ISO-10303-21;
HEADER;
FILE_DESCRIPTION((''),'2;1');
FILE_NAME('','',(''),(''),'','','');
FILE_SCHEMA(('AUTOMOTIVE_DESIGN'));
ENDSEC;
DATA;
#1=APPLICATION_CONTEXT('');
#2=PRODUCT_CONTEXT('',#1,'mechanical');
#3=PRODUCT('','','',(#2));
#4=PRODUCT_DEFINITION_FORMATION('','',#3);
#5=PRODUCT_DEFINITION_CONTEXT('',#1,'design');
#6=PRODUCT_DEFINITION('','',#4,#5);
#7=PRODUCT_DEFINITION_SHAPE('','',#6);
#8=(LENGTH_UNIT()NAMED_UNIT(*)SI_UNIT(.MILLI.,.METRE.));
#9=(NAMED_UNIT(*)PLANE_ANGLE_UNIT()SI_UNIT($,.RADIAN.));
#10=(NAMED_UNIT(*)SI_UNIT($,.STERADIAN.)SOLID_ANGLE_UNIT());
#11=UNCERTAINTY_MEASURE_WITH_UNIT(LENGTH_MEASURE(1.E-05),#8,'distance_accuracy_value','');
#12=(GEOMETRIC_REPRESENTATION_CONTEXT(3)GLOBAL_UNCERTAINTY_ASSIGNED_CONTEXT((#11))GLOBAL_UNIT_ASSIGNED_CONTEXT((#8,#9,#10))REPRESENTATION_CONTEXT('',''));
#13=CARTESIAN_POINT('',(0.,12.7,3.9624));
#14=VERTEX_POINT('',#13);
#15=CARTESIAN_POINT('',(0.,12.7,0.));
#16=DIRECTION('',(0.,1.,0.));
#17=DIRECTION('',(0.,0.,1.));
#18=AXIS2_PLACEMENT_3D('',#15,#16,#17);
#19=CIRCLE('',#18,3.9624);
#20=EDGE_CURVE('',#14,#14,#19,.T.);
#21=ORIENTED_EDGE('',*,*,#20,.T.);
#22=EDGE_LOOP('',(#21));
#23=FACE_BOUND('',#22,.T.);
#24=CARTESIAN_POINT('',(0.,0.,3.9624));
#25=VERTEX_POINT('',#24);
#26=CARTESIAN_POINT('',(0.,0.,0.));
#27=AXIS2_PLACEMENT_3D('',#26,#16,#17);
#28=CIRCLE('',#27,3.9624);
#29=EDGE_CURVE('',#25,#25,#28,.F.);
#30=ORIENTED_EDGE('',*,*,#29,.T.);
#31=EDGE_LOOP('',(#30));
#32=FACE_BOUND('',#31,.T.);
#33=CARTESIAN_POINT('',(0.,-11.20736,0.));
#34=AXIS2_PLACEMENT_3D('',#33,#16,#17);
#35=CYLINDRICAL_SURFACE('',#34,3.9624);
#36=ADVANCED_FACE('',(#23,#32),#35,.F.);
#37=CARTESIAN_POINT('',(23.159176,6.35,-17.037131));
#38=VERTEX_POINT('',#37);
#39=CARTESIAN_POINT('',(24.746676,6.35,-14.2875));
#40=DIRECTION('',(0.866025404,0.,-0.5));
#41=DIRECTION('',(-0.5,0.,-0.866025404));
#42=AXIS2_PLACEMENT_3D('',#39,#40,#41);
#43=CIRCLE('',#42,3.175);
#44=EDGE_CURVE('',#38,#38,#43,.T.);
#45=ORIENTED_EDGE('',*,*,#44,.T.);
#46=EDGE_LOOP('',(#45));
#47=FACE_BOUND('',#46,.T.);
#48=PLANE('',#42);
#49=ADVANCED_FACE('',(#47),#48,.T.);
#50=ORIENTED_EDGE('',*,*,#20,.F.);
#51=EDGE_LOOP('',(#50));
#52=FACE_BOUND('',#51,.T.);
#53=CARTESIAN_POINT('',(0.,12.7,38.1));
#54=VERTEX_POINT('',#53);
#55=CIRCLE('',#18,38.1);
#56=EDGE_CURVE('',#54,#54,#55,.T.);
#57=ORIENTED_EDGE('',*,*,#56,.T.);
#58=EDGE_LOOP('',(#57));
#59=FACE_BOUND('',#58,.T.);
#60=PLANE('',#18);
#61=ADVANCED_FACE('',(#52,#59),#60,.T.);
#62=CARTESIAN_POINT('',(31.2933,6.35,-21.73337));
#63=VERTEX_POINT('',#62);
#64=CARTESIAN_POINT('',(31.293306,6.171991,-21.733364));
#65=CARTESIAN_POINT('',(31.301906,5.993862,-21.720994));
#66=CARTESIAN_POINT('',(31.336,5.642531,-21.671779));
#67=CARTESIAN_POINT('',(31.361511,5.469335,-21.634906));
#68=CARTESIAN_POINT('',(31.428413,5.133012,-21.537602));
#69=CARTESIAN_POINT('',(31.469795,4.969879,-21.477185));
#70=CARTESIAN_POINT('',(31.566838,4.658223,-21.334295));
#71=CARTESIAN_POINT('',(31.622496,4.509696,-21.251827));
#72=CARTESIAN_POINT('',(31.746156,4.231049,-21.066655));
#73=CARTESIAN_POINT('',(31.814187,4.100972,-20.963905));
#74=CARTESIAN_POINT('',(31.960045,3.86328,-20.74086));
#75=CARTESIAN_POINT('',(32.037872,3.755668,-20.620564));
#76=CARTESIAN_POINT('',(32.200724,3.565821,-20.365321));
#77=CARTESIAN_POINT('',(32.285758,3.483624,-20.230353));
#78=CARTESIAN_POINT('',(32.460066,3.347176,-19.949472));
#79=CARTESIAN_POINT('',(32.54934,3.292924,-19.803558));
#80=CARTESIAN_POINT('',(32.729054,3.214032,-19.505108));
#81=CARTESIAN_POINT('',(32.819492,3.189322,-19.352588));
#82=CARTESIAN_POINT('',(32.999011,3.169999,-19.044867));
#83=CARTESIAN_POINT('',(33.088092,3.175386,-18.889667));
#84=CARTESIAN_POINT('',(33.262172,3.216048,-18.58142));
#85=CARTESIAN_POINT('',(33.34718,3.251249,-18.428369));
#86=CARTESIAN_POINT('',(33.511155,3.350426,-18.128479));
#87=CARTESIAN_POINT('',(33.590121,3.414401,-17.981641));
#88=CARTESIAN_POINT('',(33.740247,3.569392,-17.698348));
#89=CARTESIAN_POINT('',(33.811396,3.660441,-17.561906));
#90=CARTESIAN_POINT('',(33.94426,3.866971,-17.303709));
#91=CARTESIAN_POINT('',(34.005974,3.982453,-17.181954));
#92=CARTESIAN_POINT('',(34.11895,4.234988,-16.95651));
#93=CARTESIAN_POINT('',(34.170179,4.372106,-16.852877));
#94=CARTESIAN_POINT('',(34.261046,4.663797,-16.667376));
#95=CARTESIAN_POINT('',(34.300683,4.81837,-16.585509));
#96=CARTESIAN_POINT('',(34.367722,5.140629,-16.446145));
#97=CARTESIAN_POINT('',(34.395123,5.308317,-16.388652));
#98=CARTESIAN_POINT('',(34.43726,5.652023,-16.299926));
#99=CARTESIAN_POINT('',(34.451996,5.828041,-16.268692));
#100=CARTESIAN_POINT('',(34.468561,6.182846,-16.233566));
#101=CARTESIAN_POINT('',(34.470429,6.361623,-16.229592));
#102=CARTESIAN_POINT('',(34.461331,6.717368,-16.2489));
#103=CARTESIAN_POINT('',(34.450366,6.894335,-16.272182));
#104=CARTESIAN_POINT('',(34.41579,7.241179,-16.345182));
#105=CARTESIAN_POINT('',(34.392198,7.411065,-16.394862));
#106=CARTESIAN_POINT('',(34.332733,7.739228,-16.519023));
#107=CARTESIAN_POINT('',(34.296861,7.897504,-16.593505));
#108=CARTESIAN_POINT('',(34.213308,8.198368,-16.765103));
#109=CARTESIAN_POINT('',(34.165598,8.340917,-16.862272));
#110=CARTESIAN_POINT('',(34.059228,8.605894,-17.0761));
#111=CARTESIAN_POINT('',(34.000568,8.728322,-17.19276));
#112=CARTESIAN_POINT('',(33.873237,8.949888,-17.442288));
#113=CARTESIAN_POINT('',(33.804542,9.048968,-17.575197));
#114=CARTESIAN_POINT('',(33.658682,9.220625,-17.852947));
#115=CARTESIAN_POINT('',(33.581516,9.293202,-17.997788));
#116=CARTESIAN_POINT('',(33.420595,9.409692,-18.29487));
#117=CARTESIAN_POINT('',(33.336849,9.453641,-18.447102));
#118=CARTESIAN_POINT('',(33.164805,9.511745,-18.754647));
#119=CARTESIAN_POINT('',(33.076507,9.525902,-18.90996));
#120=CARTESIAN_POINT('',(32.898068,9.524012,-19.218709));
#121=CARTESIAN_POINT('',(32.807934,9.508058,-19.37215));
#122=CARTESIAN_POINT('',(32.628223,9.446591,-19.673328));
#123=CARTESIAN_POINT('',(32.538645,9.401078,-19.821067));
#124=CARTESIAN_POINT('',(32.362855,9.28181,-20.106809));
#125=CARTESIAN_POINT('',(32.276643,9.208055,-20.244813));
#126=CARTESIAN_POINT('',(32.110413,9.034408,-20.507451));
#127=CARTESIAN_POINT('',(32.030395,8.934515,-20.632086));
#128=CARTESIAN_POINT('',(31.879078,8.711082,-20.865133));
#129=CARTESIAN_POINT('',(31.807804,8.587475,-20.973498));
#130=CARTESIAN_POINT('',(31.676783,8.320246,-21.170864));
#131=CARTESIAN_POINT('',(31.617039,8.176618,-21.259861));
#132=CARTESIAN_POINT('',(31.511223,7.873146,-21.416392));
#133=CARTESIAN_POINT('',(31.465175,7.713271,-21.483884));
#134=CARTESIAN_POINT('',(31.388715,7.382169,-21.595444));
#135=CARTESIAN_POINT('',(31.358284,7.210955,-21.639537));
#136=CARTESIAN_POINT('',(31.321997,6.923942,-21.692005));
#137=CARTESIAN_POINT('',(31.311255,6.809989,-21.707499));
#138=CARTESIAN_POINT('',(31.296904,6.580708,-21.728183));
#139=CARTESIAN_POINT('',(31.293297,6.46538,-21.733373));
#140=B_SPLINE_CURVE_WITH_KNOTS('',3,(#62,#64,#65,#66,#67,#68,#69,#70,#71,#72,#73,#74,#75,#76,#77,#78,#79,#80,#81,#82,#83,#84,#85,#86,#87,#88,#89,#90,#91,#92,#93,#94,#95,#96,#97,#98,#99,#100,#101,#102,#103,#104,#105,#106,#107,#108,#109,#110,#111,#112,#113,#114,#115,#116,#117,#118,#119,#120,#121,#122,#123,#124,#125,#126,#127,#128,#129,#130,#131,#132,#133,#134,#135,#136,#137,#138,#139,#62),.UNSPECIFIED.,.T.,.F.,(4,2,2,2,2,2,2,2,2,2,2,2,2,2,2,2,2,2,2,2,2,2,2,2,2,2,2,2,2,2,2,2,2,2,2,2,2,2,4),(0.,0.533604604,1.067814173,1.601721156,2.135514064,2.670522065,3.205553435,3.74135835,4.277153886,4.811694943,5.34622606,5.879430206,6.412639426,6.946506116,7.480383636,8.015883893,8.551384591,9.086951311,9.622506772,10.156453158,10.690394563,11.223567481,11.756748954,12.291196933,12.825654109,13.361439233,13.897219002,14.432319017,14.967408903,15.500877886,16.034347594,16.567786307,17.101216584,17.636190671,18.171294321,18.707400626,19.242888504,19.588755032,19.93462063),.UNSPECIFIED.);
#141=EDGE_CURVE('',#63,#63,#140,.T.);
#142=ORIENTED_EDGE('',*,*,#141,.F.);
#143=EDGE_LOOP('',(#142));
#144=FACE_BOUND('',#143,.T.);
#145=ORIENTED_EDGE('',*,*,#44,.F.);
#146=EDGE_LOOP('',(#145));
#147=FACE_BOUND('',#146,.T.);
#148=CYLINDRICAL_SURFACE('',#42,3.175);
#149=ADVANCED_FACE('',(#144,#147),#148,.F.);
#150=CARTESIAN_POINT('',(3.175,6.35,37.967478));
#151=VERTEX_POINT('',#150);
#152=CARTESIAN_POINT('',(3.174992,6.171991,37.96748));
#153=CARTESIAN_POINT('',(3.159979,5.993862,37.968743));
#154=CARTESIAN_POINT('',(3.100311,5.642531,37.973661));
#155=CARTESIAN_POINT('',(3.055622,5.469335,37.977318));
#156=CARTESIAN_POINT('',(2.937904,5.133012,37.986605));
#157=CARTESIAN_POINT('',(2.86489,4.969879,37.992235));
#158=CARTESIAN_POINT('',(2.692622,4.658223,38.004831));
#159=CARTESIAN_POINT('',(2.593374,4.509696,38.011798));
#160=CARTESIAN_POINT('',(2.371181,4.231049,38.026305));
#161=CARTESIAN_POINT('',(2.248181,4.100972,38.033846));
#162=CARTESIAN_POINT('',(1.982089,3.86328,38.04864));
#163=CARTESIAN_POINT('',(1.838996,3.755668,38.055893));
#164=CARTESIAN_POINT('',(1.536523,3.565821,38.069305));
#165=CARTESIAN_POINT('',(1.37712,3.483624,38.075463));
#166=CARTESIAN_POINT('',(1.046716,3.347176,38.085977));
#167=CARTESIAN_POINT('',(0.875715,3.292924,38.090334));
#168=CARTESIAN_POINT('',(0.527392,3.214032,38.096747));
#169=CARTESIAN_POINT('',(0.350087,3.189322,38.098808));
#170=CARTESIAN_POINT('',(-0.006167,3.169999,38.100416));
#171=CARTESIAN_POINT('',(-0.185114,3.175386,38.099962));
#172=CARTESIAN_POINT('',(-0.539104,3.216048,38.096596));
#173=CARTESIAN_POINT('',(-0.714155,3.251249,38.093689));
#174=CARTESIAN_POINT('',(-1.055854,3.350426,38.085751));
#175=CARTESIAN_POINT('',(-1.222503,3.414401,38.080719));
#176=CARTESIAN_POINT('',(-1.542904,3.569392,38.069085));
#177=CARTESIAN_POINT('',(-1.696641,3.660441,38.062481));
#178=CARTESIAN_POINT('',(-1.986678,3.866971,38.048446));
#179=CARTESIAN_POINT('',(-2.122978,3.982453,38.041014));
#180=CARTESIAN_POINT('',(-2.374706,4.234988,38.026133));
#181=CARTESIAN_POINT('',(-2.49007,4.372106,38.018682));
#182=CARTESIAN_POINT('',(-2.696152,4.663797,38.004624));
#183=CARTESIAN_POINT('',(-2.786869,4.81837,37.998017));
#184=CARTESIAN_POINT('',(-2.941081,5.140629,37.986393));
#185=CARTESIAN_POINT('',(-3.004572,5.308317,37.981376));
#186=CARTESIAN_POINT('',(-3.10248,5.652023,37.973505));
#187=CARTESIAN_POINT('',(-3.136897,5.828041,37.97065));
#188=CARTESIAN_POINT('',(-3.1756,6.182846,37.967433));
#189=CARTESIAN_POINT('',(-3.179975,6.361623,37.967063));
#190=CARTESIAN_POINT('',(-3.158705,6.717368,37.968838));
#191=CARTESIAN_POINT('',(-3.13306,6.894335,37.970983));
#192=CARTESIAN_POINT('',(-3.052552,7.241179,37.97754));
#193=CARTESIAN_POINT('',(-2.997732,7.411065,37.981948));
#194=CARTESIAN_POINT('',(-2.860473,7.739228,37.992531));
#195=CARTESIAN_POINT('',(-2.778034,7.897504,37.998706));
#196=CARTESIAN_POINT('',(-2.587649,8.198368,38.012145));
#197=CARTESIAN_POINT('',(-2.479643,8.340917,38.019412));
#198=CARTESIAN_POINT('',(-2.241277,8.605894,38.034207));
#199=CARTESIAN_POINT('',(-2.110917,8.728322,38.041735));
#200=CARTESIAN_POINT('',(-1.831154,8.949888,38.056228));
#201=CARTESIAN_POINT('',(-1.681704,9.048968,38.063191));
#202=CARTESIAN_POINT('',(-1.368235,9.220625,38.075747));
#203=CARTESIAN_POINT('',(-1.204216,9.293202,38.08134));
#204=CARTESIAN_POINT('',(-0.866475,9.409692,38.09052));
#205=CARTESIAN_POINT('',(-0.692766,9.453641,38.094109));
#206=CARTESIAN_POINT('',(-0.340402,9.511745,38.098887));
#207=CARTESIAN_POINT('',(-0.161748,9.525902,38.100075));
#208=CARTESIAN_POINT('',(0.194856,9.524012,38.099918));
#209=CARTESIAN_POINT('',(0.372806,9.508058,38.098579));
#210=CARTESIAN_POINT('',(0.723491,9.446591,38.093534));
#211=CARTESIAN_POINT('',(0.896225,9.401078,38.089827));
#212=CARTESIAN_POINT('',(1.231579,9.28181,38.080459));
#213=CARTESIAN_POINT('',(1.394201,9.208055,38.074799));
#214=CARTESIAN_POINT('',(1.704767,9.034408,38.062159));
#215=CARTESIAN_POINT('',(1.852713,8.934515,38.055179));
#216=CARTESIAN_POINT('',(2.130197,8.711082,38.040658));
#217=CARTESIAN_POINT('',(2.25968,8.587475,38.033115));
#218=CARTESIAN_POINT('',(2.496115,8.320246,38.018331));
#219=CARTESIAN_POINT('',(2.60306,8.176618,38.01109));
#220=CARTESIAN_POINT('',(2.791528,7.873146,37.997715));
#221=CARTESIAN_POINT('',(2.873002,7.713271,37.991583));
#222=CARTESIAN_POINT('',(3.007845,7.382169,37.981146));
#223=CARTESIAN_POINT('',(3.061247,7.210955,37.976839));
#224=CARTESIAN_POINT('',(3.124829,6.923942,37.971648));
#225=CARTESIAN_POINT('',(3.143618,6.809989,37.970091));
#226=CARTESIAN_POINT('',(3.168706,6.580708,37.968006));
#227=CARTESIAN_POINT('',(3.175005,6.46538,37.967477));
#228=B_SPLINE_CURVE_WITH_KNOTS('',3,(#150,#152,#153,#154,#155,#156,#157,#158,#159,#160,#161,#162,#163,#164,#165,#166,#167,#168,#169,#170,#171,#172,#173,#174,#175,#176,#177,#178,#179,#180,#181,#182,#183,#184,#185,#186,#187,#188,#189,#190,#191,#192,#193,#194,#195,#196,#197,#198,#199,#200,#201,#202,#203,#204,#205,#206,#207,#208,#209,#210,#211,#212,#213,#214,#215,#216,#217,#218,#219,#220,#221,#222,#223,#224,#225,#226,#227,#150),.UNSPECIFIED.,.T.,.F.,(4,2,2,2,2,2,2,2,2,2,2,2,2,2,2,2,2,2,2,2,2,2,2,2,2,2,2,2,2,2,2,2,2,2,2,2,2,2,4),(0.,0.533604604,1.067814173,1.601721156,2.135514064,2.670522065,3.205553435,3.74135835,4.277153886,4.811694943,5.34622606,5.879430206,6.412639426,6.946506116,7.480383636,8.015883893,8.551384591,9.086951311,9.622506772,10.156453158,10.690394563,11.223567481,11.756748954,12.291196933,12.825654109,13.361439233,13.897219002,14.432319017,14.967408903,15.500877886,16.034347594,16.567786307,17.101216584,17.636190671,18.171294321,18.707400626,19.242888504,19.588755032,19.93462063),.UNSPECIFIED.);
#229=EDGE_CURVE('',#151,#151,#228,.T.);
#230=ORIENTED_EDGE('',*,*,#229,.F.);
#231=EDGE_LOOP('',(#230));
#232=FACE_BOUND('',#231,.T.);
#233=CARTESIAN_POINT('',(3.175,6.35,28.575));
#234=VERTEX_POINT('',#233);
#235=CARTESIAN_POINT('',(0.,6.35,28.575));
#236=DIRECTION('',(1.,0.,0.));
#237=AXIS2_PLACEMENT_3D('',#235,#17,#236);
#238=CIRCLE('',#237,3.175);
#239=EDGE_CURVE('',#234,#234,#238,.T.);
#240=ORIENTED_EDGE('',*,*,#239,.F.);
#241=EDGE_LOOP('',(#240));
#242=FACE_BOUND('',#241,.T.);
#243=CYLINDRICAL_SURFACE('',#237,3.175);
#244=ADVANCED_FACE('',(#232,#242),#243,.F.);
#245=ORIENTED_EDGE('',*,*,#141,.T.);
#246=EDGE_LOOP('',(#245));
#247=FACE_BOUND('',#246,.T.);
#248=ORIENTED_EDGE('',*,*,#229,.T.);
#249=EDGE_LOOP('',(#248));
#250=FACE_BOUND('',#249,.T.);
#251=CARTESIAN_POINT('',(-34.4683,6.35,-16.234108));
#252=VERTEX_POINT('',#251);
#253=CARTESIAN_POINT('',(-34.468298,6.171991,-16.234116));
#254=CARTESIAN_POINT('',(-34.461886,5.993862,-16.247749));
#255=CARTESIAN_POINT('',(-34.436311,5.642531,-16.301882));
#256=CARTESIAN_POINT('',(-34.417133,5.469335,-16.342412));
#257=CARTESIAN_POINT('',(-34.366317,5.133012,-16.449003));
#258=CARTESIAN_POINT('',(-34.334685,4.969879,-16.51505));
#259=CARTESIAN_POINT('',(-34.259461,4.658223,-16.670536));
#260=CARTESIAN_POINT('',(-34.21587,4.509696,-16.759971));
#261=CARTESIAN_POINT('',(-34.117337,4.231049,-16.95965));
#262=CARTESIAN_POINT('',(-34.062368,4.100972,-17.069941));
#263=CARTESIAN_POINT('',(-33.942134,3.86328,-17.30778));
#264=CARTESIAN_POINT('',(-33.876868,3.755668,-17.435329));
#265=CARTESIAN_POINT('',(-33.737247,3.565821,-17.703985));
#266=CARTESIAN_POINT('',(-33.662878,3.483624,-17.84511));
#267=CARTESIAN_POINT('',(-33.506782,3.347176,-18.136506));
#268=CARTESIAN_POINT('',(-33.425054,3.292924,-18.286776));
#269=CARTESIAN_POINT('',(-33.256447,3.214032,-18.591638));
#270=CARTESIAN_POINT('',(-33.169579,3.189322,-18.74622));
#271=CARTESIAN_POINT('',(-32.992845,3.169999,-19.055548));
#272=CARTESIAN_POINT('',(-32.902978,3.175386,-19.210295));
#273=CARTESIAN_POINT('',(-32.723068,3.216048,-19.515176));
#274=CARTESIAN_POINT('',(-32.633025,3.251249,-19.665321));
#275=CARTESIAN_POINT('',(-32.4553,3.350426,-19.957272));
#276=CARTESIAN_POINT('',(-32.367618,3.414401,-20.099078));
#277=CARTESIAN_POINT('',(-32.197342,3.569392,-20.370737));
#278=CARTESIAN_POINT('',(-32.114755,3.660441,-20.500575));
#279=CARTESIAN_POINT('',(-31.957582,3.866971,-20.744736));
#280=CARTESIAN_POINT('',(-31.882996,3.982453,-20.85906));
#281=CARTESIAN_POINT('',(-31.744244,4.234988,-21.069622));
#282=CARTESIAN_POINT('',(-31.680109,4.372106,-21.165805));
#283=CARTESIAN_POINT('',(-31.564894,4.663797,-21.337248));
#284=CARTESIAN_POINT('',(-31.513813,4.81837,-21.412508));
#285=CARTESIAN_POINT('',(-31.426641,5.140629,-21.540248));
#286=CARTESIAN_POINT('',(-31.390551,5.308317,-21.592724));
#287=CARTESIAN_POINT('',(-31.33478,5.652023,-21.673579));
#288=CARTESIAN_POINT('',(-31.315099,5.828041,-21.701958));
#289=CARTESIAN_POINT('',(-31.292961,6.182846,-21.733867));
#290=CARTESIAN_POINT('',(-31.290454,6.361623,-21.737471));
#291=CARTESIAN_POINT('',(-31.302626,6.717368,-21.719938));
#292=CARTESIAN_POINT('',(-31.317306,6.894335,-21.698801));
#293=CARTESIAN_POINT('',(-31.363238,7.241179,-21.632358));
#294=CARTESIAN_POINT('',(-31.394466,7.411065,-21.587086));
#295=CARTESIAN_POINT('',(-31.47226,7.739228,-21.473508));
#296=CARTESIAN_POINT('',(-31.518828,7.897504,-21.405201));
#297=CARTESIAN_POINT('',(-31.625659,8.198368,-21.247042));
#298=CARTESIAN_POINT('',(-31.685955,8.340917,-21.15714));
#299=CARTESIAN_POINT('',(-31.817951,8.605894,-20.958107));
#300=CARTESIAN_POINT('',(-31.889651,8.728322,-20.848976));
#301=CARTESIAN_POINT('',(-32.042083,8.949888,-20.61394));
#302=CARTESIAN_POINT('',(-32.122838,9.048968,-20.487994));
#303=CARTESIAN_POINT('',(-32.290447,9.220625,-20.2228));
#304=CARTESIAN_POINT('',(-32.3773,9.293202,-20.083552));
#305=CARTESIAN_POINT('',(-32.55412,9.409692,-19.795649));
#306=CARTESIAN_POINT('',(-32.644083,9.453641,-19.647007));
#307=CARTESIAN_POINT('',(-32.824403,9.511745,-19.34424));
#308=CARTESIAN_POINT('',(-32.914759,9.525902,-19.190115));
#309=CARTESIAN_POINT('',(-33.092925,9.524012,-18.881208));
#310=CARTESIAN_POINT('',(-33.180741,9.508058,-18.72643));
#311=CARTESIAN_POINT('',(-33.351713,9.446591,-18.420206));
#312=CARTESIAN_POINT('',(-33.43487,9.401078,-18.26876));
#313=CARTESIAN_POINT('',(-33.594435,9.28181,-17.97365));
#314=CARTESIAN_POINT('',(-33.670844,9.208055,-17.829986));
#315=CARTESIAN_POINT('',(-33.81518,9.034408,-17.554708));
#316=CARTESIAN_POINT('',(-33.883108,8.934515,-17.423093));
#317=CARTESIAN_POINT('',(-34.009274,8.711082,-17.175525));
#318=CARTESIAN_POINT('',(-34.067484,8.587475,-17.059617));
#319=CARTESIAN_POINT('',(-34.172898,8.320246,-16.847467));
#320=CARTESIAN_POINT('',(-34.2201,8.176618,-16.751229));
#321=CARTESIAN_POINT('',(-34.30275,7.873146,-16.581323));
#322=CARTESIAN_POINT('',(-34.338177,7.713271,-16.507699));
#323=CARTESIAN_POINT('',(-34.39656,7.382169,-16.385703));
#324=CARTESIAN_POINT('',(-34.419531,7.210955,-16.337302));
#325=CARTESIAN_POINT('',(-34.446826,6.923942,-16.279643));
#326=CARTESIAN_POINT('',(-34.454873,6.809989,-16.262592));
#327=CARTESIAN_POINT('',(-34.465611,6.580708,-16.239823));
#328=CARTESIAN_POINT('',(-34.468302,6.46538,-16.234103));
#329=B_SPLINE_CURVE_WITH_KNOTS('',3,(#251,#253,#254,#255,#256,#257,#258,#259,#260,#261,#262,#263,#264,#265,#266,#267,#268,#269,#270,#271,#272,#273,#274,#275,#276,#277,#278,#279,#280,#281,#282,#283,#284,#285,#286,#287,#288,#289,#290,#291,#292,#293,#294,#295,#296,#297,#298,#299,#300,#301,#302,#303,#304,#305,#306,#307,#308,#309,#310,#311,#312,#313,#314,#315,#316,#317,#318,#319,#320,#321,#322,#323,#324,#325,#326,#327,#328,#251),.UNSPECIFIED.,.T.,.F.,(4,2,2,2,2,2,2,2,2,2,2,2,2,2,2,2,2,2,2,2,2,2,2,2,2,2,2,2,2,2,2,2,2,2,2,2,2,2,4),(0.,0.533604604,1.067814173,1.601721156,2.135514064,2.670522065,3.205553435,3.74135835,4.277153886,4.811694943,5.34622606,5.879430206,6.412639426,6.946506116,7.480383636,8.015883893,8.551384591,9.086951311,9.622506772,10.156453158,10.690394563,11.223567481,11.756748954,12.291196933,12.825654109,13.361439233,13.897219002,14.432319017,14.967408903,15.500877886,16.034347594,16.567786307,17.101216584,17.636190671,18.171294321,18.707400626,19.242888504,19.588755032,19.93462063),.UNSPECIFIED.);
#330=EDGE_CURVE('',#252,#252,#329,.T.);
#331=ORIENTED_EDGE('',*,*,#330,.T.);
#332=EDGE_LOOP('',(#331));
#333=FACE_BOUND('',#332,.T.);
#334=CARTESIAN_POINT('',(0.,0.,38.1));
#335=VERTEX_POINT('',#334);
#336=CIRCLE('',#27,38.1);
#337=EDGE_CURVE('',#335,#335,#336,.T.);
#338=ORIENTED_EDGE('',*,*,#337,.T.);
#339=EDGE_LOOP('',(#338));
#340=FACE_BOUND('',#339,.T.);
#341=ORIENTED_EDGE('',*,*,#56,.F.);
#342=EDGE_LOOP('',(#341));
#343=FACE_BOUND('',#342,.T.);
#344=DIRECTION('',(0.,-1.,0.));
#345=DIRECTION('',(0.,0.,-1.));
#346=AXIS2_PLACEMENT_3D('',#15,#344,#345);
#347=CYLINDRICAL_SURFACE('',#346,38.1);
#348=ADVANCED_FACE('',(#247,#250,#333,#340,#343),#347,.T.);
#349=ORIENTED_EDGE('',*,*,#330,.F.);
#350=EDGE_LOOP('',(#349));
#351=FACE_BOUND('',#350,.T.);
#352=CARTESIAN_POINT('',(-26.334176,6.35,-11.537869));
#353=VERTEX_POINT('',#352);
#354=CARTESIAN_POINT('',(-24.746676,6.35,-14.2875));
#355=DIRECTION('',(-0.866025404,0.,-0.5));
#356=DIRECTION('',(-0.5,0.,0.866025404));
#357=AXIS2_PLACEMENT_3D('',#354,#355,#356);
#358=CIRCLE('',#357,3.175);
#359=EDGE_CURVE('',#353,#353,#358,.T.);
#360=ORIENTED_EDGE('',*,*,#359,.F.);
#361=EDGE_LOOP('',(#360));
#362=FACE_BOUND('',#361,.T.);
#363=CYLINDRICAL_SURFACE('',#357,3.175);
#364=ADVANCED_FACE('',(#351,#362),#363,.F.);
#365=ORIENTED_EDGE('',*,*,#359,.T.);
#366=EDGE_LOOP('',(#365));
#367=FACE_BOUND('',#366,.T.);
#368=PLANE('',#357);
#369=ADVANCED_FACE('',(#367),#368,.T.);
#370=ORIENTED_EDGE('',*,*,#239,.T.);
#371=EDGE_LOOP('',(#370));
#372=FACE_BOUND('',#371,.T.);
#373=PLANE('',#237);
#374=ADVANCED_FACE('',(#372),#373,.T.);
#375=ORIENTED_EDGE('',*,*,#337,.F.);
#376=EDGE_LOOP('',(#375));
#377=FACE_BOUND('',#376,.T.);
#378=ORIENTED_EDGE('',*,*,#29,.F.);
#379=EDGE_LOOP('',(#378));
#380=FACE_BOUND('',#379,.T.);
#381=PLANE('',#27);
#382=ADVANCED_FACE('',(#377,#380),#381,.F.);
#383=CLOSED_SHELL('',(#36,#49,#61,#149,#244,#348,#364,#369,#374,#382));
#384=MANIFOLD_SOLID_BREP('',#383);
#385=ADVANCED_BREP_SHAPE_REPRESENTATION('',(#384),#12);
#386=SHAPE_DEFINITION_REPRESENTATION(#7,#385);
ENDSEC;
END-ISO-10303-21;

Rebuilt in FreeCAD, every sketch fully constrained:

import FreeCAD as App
import Part
import Sketcher
Q = App.Units.Quantity

doc = App.newDocument("Part")
body = doc.addObject("PartDesign::Body", "Body")

# Sketch on XZ plane
sketch1 = body.newObject("Sketcher::SketchObject", "Sketch")
sketch1.AttachmentSupport = (doc.getObject("XZ_Plane"), [""])
sketch1.MapMode = "FlatFace"
sketch1.addGeometry(Part.Circle(App.Vector(0, 0, 0), App.Vector(0, 0, 1), 38), False)
sketch1.addConstraint([
    Sketcher.Constraint("Coincident", 0, 3, -1, 1),
    Sketcher.Constraint("Diameter", 0, Q("3 in")),
])
pad1 = body.newObject("PartDesign::Pad", "Pad")
pad1.Profile = sketch1
pad1.Length = Q("0.5 in")
pad1.Reversed = True

# Sketch on XY plane
sketch2 = body.newObject("Sketcher::SketchObject", "Sketch001")
sketch2.AttachmentSupport = (doc.getObject("XY_Plane"), [""])
sketch2.MapMode = "FlatFace"
sketch2.AttachmentOffset = App.Placement(App.Vector(0, 0, 1.5 * 25.4), App.Rotation())
sketch2.addGeometry(Part.Circle(App.Vector(0, 6.3, 0), App.Vector(0, 0, 1), 3.2), False)
sketch2.addConstraint([
    Sketcher.Constraint("PointOnObject", 0, 3, -2),
    Sketcher.Constraint("Diameter", 0, Q("0.25 in")),
    Sketcher.Constraint("DistanceY", -1, 1, 0, 3, Q("0.25 in")),
])
pocket1 = body.newObject("PartDesign::Pocket", "Pocket")
pocket1.Profile = sketch2
pocket1.Length = Q("0.375 in")
doc.recompute()

polarpattern = body.newObject("PartDesign::PolarPattern", "PolarPattern")
polarpattern.Originals = [pocket1]
polarpattern.Axis = (doc.getObject("Y_Axis"), [""])
polarpattern.Angle = 360
polarpattern.Occurrences = 3
body.Tip = polarpattern

# Sketch on XZ plane
sketch3 = body.newObject("Sketcher::SketchObject", "Sketch002")
sketch3.AttachmentSupport = (doc.getObject("XZ_Plane"), [""])
sketch3.MapMode = "FlatFace"
sketch3.AttachmentOffset = App.Placement(App.Vector(0, 0, -0.5 * 25.4), App.Rotation())
sketch3.addGeometry(Part.Circle(App.Vector(0, 0, 0), App.Vector(0, 0, 1), 4), False)
sketch3.addConstraint([
    Sketcher.Constraint("Coincident", 0, 3, -1, 1),
    Sketcher.Constraint("Diameter", 0, Q("0.312 in")),
])
pocket2 = body.newObject("PartDesign::Pocket", "Pocket001")
pocket2.Profile = sketch3
pocket2.Length = Q("0.5 in")
pocket2.Reversed = True

doc.recompute()
